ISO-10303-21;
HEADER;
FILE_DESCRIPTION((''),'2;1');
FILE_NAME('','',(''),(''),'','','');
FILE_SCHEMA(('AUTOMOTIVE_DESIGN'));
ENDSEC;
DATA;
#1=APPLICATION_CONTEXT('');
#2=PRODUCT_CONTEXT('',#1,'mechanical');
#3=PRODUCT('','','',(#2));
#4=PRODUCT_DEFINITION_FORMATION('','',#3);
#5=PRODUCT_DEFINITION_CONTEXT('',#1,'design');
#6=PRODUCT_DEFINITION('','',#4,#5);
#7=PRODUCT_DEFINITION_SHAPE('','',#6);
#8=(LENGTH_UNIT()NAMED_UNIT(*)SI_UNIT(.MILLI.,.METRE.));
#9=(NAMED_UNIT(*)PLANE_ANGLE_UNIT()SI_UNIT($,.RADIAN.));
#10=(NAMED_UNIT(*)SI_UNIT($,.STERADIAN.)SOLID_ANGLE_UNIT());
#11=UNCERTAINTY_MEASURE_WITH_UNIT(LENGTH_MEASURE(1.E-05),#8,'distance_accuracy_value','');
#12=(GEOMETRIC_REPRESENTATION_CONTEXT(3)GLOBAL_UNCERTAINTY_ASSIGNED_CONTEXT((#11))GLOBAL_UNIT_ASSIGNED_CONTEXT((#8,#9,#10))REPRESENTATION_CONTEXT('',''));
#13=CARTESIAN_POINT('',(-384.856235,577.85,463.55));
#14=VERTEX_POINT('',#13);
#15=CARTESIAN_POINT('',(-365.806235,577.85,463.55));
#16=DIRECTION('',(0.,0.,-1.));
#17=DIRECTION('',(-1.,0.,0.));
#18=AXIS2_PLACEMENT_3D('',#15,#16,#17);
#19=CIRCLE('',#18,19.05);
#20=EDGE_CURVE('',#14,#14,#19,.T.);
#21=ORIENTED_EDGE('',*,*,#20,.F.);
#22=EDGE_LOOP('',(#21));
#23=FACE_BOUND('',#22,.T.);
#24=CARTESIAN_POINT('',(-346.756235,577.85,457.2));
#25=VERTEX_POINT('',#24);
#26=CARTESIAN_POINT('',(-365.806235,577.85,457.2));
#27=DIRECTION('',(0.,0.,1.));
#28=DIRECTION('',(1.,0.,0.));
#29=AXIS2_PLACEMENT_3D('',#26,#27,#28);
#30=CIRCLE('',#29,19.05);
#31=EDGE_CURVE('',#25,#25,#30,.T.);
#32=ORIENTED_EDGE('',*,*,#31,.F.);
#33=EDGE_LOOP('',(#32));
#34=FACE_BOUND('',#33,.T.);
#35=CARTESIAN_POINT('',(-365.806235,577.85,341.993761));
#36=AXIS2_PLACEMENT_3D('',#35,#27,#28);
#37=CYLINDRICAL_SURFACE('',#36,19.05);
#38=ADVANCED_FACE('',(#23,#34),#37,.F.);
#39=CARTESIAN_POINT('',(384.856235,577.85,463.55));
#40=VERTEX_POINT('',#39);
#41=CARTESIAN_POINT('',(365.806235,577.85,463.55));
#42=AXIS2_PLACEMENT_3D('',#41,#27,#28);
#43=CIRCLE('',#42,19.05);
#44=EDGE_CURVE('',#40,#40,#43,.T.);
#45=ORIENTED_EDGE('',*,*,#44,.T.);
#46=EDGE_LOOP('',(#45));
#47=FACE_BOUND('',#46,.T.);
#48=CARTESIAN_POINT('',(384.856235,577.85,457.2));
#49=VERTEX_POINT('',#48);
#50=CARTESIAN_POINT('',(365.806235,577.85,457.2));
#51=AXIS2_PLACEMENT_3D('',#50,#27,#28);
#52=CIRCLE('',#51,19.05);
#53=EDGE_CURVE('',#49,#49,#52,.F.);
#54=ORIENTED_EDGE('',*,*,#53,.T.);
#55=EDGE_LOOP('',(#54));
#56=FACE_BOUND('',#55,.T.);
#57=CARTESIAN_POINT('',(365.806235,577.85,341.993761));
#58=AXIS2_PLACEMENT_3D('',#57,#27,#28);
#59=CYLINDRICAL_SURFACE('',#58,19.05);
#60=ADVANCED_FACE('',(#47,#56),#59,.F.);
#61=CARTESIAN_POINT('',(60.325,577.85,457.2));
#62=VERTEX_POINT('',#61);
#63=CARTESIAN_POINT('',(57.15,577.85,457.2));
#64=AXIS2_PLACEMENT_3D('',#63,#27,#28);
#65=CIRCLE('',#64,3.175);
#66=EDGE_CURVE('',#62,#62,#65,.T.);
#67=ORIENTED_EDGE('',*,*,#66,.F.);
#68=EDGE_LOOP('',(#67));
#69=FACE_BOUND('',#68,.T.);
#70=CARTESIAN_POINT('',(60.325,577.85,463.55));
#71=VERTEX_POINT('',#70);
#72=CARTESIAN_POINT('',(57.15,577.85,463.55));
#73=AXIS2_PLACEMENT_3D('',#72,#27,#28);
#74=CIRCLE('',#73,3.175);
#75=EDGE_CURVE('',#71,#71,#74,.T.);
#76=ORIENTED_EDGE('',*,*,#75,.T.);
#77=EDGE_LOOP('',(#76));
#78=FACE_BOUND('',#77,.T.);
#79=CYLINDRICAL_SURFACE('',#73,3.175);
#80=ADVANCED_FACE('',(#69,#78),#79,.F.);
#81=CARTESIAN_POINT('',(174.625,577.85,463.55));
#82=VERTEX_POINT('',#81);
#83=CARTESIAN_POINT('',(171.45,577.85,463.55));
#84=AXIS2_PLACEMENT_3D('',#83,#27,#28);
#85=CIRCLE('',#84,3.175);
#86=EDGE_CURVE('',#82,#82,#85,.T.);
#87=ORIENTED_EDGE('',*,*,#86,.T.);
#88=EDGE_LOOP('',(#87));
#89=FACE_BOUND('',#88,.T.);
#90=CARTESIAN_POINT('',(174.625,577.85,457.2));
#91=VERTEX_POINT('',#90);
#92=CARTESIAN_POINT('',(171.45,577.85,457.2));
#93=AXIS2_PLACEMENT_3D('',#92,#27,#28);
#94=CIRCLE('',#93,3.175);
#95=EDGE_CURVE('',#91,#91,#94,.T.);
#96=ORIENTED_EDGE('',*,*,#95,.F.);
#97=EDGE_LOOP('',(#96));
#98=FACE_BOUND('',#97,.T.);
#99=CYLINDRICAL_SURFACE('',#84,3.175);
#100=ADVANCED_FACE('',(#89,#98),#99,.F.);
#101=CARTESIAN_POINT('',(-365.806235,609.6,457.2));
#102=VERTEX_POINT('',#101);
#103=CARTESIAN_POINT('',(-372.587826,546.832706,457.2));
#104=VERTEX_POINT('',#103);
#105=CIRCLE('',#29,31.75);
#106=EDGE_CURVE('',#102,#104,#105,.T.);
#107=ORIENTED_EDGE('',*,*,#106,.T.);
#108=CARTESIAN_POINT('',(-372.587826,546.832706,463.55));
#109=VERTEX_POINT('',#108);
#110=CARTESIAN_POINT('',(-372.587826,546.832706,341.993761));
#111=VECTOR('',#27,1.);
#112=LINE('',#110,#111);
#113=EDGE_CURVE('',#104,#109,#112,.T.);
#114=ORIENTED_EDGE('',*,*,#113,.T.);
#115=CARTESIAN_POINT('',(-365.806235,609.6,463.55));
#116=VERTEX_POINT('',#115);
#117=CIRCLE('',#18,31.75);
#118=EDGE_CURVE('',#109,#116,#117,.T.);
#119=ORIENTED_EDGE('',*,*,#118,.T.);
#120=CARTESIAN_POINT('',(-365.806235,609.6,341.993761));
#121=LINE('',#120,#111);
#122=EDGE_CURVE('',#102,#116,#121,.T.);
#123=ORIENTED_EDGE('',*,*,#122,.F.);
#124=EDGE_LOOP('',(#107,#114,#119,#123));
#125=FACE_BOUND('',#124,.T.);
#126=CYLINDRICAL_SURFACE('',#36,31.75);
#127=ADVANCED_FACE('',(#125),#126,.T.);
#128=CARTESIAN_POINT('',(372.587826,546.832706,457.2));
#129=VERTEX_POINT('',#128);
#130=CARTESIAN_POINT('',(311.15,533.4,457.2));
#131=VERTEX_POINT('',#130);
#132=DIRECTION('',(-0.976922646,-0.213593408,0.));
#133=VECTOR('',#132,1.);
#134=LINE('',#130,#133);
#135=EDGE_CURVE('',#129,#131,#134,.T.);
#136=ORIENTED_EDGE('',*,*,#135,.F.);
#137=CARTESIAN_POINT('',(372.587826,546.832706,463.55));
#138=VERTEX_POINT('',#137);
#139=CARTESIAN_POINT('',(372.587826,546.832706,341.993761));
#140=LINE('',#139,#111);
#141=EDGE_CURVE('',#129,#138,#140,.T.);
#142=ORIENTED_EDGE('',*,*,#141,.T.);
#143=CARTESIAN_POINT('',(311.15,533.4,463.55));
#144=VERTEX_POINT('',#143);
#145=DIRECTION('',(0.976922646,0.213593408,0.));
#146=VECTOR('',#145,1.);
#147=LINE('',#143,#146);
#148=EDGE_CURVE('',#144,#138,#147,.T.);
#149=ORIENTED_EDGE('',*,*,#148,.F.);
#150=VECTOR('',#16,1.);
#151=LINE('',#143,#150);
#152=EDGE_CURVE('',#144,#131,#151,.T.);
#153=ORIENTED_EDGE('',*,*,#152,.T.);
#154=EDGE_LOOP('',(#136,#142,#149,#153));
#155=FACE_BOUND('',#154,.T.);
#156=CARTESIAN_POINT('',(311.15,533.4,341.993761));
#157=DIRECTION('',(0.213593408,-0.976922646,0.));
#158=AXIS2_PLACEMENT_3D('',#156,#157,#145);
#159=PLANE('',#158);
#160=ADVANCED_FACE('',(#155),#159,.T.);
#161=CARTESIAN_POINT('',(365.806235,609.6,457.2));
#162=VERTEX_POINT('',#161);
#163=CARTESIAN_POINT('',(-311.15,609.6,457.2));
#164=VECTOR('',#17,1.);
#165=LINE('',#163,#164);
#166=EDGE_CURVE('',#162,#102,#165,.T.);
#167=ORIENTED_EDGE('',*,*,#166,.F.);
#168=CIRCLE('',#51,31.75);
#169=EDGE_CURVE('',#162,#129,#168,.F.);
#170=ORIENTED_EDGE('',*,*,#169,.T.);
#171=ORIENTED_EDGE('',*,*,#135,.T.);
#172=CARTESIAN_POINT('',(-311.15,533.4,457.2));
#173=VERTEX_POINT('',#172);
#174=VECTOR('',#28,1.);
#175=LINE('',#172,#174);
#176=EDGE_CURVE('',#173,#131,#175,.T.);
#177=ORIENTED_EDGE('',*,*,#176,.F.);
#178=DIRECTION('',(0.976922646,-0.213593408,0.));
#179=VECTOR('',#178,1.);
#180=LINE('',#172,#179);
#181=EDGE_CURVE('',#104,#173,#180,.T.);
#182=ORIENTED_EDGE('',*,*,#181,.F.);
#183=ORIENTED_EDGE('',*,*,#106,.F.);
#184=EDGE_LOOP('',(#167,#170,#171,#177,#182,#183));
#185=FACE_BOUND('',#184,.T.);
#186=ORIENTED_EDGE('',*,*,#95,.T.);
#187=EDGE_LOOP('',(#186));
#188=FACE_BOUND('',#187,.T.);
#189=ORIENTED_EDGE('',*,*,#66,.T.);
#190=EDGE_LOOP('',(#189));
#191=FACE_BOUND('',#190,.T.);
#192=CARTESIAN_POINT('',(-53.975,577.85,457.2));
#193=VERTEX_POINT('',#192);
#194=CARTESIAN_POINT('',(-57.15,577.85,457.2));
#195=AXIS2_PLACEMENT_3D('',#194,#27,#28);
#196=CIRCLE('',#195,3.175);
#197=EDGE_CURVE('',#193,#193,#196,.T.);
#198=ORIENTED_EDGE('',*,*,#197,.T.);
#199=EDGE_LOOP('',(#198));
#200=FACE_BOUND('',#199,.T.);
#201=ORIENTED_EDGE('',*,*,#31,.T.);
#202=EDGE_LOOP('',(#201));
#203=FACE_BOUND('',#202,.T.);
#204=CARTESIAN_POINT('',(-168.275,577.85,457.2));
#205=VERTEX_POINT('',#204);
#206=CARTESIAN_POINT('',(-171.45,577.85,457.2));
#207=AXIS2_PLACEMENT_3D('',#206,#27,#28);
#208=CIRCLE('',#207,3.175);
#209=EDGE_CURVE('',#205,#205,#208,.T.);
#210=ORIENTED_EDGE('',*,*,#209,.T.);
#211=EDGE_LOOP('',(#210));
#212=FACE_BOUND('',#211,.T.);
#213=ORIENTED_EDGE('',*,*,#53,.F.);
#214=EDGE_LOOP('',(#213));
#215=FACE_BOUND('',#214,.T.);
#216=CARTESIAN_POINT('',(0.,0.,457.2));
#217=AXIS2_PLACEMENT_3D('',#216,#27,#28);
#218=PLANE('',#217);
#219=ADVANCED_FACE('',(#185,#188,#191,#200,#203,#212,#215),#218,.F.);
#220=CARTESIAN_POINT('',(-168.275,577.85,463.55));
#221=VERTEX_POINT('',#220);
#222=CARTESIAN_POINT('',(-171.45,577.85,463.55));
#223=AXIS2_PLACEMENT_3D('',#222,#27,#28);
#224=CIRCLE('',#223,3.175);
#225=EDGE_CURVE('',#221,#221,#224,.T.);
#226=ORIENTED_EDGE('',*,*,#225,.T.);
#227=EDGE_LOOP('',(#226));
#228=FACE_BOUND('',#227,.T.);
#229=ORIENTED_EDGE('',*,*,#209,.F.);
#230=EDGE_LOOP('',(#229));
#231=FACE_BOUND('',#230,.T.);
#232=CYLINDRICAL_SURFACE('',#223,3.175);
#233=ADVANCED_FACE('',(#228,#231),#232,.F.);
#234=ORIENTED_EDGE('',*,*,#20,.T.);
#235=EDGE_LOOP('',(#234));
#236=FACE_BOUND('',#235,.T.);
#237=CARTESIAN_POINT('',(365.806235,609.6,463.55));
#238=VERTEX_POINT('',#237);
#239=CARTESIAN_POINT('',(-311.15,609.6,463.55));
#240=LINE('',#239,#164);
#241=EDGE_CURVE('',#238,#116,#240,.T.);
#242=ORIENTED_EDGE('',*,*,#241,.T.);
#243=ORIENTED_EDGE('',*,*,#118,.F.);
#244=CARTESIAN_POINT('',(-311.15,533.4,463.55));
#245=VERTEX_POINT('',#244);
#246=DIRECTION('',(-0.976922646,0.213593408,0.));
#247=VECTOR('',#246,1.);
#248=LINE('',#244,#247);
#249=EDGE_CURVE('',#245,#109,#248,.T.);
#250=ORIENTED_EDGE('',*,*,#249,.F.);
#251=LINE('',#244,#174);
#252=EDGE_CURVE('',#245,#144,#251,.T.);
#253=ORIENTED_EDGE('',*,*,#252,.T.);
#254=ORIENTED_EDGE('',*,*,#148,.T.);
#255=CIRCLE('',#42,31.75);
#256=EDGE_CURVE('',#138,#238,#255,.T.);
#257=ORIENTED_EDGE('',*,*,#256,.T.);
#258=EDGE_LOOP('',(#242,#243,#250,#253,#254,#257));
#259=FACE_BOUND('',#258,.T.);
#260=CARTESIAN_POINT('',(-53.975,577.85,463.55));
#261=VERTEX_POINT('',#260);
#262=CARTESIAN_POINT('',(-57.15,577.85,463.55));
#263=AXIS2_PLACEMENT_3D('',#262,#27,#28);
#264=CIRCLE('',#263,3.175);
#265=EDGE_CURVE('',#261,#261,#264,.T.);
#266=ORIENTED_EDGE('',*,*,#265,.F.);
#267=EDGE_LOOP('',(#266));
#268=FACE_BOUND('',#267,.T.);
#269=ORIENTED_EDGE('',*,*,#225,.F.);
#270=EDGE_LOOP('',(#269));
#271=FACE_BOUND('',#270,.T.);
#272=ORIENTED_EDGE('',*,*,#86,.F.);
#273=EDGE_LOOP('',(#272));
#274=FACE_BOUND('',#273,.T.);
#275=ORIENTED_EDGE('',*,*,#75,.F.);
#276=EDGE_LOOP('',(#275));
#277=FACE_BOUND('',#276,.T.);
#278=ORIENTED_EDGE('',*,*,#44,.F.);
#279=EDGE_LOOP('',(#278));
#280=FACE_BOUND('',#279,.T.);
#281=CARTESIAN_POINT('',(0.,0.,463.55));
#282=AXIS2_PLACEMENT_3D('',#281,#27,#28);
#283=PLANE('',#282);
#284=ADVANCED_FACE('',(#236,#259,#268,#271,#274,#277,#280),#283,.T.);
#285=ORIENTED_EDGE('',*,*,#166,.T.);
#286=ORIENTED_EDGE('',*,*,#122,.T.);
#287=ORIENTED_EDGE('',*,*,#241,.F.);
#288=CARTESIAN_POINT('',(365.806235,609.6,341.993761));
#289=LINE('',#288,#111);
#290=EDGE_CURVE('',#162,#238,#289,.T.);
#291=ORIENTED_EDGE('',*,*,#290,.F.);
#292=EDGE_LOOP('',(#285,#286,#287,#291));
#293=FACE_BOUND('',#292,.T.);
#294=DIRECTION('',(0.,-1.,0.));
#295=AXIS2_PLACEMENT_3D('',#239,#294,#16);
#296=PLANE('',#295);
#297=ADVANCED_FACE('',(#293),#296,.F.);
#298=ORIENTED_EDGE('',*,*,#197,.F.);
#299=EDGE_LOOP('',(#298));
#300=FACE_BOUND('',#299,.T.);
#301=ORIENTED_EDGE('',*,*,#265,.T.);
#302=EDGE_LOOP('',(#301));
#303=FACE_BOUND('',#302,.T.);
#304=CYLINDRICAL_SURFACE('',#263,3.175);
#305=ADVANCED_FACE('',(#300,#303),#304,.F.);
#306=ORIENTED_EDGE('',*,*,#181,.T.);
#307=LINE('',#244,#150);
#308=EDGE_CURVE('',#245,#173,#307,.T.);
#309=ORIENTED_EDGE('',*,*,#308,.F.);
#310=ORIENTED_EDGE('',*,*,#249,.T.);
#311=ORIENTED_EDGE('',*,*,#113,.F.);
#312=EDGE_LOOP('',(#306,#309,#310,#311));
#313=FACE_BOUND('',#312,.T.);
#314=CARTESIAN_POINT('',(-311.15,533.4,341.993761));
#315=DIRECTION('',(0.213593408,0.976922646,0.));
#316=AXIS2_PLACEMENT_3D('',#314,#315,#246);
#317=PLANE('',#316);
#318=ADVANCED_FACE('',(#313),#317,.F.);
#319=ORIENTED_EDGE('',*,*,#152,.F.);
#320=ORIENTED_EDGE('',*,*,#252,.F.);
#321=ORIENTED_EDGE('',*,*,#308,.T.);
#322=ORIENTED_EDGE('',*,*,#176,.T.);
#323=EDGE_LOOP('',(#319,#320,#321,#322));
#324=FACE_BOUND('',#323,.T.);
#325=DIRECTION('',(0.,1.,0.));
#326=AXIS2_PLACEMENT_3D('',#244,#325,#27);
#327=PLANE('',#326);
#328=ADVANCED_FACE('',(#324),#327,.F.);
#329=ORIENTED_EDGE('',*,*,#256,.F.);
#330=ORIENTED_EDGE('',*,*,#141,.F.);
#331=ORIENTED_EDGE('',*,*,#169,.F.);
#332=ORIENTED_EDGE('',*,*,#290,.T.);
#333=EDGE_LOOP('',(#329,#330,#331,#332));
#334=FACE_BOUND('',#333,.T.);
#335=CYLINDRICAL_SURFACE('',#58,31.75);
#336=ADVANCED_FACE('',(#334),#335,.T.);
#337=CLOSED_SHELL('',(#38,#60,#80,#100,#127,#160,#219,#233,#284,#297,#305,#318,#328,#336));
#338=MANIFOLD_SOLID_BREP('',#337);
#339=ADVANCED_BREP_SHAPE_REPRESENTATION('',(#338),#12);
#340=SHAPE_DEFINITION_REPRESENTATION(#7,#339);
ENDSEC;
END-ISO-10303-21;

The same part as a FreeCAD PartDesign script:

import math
import FreeCAD as App
import Part
import Sketcher
Q = App.Units.Quantity


def add_polygon(sketch, points):
    """Adds a closed chain of lines whose ends are joined by coincident constraints."""
    first, n = sketch.GeometryCount, len(points)
    for a, b in zip(points, points[1:] + points[:1]):
        sketch.addGeometry(Part.LineSegment(App.Vector(*a, 0), App.Vector(*b, 0)), False)
    for i in range(n):
        sketch.addConstraint(Sketcher.Constraint("Coincident", first + i, 2, first + (i + 1) % n, 1))

doc = App.newDocument("Part")
body = doc.addObject("PartDesign::Body", "Body")

# Sketch on XY plane
sketch1 = doc.addObject("Sketcher::SketchObject", "Sketch")
body.addObject(sketch1)
sketch1.AttachmentSupport = (doc.XY_Plane, [""])
sketch1.MapMode = "FlatFace"
sketch1.AttachmentOffset = App.Placement(App.Vector(0, 0, 18 * 25.4), App.Rotation())
add_polygon(sketch1, [(-311, 610), (-311, 533), (311, 533), (311, 610)])  # lines 0-3
sketch1.addConstraint([
    Sketcher.Constraint("Vertical", 0),
    Sketcher.Constraint("Horizontal", 1),
    Sketcher.Constraint("Vertical", 2),
    Sketcher.Constraint("Horizontal", 3),
    Sketcher.Constraint("DistanceY", 0, 2, 0, 1, Q("3 in")),
    Sketcher.Constraint("DistanceX", 1, 1, 1, 2, Q("24.5 in")),
    Sketcher.Constraint("DistanceY", -1, 1, 0, 2, Q("21 in")),
    Sketcher.Constraint("DistanceX", 0, 2, -1, 1, Q("12.25 in")),
])
pad1 = doc.addObject("PartDesign::Pad", "Pad")
body.addObject(pad1)
pad1.Profile = sketch1
pad1.Length = Q("0.25 in")

# Sketch on XY plane
sketch2 = doc.addObject("Sketcher::SketchObject", "Sketch001")
body.addObject(sketch2)
sketch2.AttachmentSupport = (doc.XY_Plane, [""])
sketch2.MapMode = "FlatFace"
sketch2.AttachmentOffset = App.Placement(App.Vector(0, 0, 18.25 * 25.4), App.Rotation())
sketch2.addGeometry(Part.Circle(App.Vector(171.4, 577.9, 0), App.Vector(0, 0, 1), 3.2), False)
sketch2.addConstraint([
    Sketcher.Constraint("Diameter", 0, Q("0.25 in")),
    Sketcher.Constraint("DistanceX", -1, 1, 0, 3, Q("6.75 in")),
    Sketcher.Constraint("DistanceY", -1, 1, 0, 3, Q("22.75 in")),
])
doc.recompute()
hole = doc.addObject("PartDesign::Hole", "Hole")
body.addObject(hole)
hole.Profile = sketch2
hole.ThreadType = "None"
hole.Diameter = Q("0.25 in")
hole.DepthType = "ThroughAll"
doc.recompute()

linearpattern = doc.addObject("PartDesign::LinearPattern", "LinearPattern")
body.addObject(linearpattern)
linearpattern.Originals = [hole]
linearpattern.Direction = (doc.X_Axis, [""])
linearpattern.Mode = "offset"
linearpattern.Offset = Q("4.5 in")
linearpattern.Occurrences = 4
linearpattern.Reversed = True
body.Tip = linearpattern

# Sketch on XY plane
sketch3 = doc.addObject("Sketcher::SketchObject", "Sketch002")
body.addObject(sketch3)
sketch3.AttachmentSupport = (doc.XY_Plane, [""])
sketch3.MapMode = "FlatFace"
sketch3.AttachmentOffset = App.Placement(App.Vector(0, 0, 18.25 * 25.4), App.Rotation())
sketch3.addGeometry([
    Part.LineSegment(App.Vector(311, 533, 0), App.Vector(373, 547, 0)),  # 0
    Part.ArcOfCircle(Part.Circle(App.Vector(366, 578, 0), App.Vector(0, 0, 1), 32), math.radians(-78), math.radians(90)),  # 1
    Part.LineSegment(App.Vector(366, 610, 0), App.Vector(311, 610, 0)),  # 2
    Part.LineSegment(App.Vector(311, 610, 0), App.Vector(311, 533, 0)),  # 3
    Part.Circle(App.Vector(366, 578, 0), App.Vector(0, 0, 1), 19),  # 4
], False)
sketch3.addConstraint([
    Sketcher.Constraint("Tangent", 0, 2, 1, 1),
    Sketcher.Constraint("Tangent", 1, 2, 2, 1),
    Sketcher.Constraint("Coincident", 2, 2, 3, 1),
    Sketcher.Constraint("Coincident", 3, 2, 0, 1),
    Sketcher.Constraint("Horizontal", 2),
    Sketcher.Constraint("Vertical", 3),
    Sketcher.Constraint("Coincident", 4, 3, 1, 3),
    Sketcher.Constraint("Diameter", 4, Q("1.5 in")),
    Sketcher.Constraint("DistanceY", 3, 2, 3, 1, Q("3 in")),
    Sketcher.Constraint("Radius", 1, Q("1.25 in")),
    Sketcher.Constraint("DistanceY", -1, 1, 1, 2, Q("24 in")),
    Sketcher.Constraint("DistanceX", -1, 1, 2, 2, Q("12.25 in")),
    Sketcher.Constraint("Distance", 0, 62.889141),
])
pad2 = doc.addObject("PartDesign::Pad", "Pad001")
body.addObject(pad2)
pad2.Profile = sketch3
pad2.Length = Q("0.25 in")
pad2.Reversed = True
doc.recompute()

mirrored = doc.addObject("PartDesign::Mirrored", "Mirrored")
body.addObject(mirrored)
mirrored.Originals = [pad2]
mirrored.MirrorPlane = (doc.YZ_Plane, [""])
body.Tip = mirrored

doc.recompute()
